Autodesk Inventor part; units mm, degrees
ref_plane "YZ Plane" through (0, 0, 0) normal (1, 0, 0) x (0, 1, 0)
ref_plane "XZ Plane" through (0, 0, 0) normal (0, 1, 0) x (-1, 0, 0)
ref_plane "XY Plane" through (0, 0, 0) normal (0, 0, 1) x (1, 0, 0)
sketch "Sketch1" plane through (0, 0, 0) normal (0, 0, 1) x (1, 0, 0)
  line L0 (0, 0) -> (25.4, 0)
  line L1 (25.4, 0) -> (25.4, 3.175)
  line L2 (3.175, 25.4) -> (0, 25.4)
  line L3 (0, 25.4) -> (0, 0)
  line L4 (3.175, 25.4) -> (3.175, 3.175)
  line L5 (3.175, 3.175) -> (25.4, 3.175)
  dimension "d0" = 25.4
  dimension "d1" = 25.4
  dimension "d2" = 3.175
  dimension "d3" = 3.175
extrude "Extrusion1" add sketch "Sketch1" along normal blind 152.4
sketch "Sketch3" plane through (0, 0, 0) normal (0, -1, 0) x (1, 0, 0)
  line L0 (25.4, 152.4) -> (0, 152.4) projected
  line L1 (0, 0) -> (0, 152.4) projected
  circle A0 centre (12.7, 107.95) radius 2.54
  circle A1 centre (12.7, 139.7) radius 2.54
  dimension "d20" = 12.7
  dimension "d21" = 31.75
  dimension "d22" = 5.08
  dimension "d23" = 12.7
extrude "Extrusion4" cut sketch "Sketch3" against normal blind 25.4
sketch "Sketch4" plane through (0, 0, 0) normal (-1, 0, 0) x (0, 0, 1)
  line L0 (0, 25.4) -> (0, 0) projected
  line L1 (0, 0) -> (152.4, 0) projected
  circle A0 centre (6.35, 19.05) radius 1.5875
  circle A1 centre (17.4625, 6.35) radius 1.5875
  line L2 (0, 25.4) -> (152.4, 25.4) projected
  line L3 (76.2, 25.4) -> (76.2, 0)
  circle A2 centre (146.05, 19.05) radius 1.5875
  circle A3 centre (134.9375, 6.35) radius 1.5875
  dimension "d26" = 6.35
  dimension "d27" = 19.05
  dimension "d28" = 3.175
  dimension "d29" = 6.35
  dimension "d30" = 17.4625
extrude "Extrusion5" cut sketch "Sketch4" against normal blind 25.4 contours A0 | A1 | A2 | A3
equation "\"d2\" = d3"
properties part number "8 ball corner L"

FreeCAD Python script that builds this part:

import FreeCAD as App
import Part
import Sketcher

V = App.Vector
Q = App.Units.Quantity


def add_polygon(sketch, points):
    """Adds a closed chain of lines whose ends are joined by coincident constraints."""
    first, n = sketch.GeometryCount, len(points)
    for a, b in zip(points, points[1:] + points[:1]):
        sketch.addGeometry(Part.LineSegment(App.Vector(*a, 0), App.Vector(*b, 0)), False)
    for i in range(n):
        sketch.addConstraint(Sketcher.Constraint("Coincident", first + i, 2, first + (i + 1) % n, 1))

doc = App.newDocument("Part")
body = doc.addObject("PartDesign::Body", "Body")

# Sketch on XY plane
sketch1 = body.newObject("Sketcher::SketchObject", "Sketch")
sketch1.AttachmentSupport = (doc.getObject("XY_Plane"), [""])
sketch1.MapMode = "FlatFace"
add_polygon(sketch1, [(0, 25.4), (0, 0), (25.4, 0), (25.4, 3.2), (3.2, 3.2), (3.2, 25.4)])  # lines 0-5
sketch1.addConstraint([
    Sketcher.Constraint("Vertical", 0),
    Sketcher.Constraint("Horizontal", 1),
    Sketcher.Constraint("Vertical", 2),
    Sketcher.Constraint("Horizontal", 3),
    Sketcher.Constraint("Vertical", 4),
    Sketcher.Constraint("Horizontal", 5),
    Sketcher.Constraint("Coincident", 0, 2, -1, 1),
    Sketcher.Constraint("Equal", 1, 0),
    Sketcher.Constraint("Equal", 5, 2),
    Sketcher.Constraint("DistanceX", 1, 1, 1, 2, Q("1 in")),
    Sketcher.Constraint("DistanceX", 5, 2, 5, 1, Q("0.125 in")),
])
pad1 = body.newObject("PartDesign::Pad", "Pad")
pad1.Profile = sketch1
pad1.Length = Q("6 in")

# Sketch on XZ plane
sketch2 = body.newObject("Sketcher::SketchObject", "Sketch001")
sketch2.AttachmentSupport = (doc.getObject("XZ_Plane"), [""])
sketch2.MapMode = "FlatFace"
sketch2.addGeometry([
    Part.Circle(V(12.7, 108, 0), V(0, 0, 1), 2.5),
    Part.Circle(V(12.7, 139.7, 0), V(0, 0, 1), 2.5),
], False)
sketch2.addConstraint([
    Sketcher.Constraint("Equal", 0, 1),
    Sketcher.Constraint("Vertical", 0, 3, 1, 3),
    Sketcher.Constraint("Diameter", 0, Q("0.2 in")),
    Sketcher.Constraint("DistanceX", -1, 1, 0, 3, Q("0.5 in")),
    Sketcher.Constraint("DistanceY", 0, 3, 1, 3, Q("1.25 in")),
    Sketcher.Constraint("DistanceY", -1, 1, 1, 3, Q("5.5 in")),
])
pocket1 = body.newObject("PartDesign::Pocket", "Pocket")
pocket1.Profile = sketch2
pocket1.Length = Q("1 in")

# Sketch on YZ plane
sketch3 = body.newObject("Sketcher::SketchObject", "Sketch002")
sketch3.AttachmentSupport = (doc.getObject("YZ_Plane"), [""])
sketch3.MapMode = "FlatFace"
sketch3.addGeometry([
    Part.Circle(V(19.1, 6.3, 0), V(0, 0, 1), 1.6),
    Part.Circle(V(6.3, 17.5, 0), V(0, 0, 1), 1.6),
    Part.Circle(V(19.1, 146.1, 0), V(0, 0, 1), 1.6),
    Part.Circle(V(6.3, 134.9, 0), V(0, 0, 1), 1.6),
], False)
sketch3.addConstraint([
    Sketcher.Constraint("Equal", 0, 1),
    Sketcher.Constraint("Equal", 1, 2),
    Sketcher.Constraint("Equal", 2, 3),
    Sketcher.Constraint("Vertical", 0, 3, 2, 3),
    Sketcher.Constraint("Vertical", 1, 3, 3, 3),
    Sketcher.Constraint("Diameter", 0, Q("0.125 in")),
    Sketcher.Constraint("DistanceX", -1, 1, 0, 3, Q("0.75 in")),
    Sketcher.Constraint("DistanceY", -1, 1, 0, 3, Q("0.25 in")),
    Sketcher.Constraint("DistanceX", -1, 1, 1, 3, Q("0.25 in")),
    Sketcher.Constraint("DistanceY", -1, 1, 1, 3, Q("0.6875 in")),
    Sketcher.Constraint("DistanceY", 0, 3, 2, 3, Q("5.5 in")),
    Sketcher.Constraint("DistanceY", -1, 1, 3, 3, Q("5.3125 in")),
])
pocket2 = body.newObject("PartDesign::Pocket", "Pocket001")
pocket2.Profile = sketch3
pocket2.Length = Q("1 in")
pocket2.Reversed = True

doc.recompute()
